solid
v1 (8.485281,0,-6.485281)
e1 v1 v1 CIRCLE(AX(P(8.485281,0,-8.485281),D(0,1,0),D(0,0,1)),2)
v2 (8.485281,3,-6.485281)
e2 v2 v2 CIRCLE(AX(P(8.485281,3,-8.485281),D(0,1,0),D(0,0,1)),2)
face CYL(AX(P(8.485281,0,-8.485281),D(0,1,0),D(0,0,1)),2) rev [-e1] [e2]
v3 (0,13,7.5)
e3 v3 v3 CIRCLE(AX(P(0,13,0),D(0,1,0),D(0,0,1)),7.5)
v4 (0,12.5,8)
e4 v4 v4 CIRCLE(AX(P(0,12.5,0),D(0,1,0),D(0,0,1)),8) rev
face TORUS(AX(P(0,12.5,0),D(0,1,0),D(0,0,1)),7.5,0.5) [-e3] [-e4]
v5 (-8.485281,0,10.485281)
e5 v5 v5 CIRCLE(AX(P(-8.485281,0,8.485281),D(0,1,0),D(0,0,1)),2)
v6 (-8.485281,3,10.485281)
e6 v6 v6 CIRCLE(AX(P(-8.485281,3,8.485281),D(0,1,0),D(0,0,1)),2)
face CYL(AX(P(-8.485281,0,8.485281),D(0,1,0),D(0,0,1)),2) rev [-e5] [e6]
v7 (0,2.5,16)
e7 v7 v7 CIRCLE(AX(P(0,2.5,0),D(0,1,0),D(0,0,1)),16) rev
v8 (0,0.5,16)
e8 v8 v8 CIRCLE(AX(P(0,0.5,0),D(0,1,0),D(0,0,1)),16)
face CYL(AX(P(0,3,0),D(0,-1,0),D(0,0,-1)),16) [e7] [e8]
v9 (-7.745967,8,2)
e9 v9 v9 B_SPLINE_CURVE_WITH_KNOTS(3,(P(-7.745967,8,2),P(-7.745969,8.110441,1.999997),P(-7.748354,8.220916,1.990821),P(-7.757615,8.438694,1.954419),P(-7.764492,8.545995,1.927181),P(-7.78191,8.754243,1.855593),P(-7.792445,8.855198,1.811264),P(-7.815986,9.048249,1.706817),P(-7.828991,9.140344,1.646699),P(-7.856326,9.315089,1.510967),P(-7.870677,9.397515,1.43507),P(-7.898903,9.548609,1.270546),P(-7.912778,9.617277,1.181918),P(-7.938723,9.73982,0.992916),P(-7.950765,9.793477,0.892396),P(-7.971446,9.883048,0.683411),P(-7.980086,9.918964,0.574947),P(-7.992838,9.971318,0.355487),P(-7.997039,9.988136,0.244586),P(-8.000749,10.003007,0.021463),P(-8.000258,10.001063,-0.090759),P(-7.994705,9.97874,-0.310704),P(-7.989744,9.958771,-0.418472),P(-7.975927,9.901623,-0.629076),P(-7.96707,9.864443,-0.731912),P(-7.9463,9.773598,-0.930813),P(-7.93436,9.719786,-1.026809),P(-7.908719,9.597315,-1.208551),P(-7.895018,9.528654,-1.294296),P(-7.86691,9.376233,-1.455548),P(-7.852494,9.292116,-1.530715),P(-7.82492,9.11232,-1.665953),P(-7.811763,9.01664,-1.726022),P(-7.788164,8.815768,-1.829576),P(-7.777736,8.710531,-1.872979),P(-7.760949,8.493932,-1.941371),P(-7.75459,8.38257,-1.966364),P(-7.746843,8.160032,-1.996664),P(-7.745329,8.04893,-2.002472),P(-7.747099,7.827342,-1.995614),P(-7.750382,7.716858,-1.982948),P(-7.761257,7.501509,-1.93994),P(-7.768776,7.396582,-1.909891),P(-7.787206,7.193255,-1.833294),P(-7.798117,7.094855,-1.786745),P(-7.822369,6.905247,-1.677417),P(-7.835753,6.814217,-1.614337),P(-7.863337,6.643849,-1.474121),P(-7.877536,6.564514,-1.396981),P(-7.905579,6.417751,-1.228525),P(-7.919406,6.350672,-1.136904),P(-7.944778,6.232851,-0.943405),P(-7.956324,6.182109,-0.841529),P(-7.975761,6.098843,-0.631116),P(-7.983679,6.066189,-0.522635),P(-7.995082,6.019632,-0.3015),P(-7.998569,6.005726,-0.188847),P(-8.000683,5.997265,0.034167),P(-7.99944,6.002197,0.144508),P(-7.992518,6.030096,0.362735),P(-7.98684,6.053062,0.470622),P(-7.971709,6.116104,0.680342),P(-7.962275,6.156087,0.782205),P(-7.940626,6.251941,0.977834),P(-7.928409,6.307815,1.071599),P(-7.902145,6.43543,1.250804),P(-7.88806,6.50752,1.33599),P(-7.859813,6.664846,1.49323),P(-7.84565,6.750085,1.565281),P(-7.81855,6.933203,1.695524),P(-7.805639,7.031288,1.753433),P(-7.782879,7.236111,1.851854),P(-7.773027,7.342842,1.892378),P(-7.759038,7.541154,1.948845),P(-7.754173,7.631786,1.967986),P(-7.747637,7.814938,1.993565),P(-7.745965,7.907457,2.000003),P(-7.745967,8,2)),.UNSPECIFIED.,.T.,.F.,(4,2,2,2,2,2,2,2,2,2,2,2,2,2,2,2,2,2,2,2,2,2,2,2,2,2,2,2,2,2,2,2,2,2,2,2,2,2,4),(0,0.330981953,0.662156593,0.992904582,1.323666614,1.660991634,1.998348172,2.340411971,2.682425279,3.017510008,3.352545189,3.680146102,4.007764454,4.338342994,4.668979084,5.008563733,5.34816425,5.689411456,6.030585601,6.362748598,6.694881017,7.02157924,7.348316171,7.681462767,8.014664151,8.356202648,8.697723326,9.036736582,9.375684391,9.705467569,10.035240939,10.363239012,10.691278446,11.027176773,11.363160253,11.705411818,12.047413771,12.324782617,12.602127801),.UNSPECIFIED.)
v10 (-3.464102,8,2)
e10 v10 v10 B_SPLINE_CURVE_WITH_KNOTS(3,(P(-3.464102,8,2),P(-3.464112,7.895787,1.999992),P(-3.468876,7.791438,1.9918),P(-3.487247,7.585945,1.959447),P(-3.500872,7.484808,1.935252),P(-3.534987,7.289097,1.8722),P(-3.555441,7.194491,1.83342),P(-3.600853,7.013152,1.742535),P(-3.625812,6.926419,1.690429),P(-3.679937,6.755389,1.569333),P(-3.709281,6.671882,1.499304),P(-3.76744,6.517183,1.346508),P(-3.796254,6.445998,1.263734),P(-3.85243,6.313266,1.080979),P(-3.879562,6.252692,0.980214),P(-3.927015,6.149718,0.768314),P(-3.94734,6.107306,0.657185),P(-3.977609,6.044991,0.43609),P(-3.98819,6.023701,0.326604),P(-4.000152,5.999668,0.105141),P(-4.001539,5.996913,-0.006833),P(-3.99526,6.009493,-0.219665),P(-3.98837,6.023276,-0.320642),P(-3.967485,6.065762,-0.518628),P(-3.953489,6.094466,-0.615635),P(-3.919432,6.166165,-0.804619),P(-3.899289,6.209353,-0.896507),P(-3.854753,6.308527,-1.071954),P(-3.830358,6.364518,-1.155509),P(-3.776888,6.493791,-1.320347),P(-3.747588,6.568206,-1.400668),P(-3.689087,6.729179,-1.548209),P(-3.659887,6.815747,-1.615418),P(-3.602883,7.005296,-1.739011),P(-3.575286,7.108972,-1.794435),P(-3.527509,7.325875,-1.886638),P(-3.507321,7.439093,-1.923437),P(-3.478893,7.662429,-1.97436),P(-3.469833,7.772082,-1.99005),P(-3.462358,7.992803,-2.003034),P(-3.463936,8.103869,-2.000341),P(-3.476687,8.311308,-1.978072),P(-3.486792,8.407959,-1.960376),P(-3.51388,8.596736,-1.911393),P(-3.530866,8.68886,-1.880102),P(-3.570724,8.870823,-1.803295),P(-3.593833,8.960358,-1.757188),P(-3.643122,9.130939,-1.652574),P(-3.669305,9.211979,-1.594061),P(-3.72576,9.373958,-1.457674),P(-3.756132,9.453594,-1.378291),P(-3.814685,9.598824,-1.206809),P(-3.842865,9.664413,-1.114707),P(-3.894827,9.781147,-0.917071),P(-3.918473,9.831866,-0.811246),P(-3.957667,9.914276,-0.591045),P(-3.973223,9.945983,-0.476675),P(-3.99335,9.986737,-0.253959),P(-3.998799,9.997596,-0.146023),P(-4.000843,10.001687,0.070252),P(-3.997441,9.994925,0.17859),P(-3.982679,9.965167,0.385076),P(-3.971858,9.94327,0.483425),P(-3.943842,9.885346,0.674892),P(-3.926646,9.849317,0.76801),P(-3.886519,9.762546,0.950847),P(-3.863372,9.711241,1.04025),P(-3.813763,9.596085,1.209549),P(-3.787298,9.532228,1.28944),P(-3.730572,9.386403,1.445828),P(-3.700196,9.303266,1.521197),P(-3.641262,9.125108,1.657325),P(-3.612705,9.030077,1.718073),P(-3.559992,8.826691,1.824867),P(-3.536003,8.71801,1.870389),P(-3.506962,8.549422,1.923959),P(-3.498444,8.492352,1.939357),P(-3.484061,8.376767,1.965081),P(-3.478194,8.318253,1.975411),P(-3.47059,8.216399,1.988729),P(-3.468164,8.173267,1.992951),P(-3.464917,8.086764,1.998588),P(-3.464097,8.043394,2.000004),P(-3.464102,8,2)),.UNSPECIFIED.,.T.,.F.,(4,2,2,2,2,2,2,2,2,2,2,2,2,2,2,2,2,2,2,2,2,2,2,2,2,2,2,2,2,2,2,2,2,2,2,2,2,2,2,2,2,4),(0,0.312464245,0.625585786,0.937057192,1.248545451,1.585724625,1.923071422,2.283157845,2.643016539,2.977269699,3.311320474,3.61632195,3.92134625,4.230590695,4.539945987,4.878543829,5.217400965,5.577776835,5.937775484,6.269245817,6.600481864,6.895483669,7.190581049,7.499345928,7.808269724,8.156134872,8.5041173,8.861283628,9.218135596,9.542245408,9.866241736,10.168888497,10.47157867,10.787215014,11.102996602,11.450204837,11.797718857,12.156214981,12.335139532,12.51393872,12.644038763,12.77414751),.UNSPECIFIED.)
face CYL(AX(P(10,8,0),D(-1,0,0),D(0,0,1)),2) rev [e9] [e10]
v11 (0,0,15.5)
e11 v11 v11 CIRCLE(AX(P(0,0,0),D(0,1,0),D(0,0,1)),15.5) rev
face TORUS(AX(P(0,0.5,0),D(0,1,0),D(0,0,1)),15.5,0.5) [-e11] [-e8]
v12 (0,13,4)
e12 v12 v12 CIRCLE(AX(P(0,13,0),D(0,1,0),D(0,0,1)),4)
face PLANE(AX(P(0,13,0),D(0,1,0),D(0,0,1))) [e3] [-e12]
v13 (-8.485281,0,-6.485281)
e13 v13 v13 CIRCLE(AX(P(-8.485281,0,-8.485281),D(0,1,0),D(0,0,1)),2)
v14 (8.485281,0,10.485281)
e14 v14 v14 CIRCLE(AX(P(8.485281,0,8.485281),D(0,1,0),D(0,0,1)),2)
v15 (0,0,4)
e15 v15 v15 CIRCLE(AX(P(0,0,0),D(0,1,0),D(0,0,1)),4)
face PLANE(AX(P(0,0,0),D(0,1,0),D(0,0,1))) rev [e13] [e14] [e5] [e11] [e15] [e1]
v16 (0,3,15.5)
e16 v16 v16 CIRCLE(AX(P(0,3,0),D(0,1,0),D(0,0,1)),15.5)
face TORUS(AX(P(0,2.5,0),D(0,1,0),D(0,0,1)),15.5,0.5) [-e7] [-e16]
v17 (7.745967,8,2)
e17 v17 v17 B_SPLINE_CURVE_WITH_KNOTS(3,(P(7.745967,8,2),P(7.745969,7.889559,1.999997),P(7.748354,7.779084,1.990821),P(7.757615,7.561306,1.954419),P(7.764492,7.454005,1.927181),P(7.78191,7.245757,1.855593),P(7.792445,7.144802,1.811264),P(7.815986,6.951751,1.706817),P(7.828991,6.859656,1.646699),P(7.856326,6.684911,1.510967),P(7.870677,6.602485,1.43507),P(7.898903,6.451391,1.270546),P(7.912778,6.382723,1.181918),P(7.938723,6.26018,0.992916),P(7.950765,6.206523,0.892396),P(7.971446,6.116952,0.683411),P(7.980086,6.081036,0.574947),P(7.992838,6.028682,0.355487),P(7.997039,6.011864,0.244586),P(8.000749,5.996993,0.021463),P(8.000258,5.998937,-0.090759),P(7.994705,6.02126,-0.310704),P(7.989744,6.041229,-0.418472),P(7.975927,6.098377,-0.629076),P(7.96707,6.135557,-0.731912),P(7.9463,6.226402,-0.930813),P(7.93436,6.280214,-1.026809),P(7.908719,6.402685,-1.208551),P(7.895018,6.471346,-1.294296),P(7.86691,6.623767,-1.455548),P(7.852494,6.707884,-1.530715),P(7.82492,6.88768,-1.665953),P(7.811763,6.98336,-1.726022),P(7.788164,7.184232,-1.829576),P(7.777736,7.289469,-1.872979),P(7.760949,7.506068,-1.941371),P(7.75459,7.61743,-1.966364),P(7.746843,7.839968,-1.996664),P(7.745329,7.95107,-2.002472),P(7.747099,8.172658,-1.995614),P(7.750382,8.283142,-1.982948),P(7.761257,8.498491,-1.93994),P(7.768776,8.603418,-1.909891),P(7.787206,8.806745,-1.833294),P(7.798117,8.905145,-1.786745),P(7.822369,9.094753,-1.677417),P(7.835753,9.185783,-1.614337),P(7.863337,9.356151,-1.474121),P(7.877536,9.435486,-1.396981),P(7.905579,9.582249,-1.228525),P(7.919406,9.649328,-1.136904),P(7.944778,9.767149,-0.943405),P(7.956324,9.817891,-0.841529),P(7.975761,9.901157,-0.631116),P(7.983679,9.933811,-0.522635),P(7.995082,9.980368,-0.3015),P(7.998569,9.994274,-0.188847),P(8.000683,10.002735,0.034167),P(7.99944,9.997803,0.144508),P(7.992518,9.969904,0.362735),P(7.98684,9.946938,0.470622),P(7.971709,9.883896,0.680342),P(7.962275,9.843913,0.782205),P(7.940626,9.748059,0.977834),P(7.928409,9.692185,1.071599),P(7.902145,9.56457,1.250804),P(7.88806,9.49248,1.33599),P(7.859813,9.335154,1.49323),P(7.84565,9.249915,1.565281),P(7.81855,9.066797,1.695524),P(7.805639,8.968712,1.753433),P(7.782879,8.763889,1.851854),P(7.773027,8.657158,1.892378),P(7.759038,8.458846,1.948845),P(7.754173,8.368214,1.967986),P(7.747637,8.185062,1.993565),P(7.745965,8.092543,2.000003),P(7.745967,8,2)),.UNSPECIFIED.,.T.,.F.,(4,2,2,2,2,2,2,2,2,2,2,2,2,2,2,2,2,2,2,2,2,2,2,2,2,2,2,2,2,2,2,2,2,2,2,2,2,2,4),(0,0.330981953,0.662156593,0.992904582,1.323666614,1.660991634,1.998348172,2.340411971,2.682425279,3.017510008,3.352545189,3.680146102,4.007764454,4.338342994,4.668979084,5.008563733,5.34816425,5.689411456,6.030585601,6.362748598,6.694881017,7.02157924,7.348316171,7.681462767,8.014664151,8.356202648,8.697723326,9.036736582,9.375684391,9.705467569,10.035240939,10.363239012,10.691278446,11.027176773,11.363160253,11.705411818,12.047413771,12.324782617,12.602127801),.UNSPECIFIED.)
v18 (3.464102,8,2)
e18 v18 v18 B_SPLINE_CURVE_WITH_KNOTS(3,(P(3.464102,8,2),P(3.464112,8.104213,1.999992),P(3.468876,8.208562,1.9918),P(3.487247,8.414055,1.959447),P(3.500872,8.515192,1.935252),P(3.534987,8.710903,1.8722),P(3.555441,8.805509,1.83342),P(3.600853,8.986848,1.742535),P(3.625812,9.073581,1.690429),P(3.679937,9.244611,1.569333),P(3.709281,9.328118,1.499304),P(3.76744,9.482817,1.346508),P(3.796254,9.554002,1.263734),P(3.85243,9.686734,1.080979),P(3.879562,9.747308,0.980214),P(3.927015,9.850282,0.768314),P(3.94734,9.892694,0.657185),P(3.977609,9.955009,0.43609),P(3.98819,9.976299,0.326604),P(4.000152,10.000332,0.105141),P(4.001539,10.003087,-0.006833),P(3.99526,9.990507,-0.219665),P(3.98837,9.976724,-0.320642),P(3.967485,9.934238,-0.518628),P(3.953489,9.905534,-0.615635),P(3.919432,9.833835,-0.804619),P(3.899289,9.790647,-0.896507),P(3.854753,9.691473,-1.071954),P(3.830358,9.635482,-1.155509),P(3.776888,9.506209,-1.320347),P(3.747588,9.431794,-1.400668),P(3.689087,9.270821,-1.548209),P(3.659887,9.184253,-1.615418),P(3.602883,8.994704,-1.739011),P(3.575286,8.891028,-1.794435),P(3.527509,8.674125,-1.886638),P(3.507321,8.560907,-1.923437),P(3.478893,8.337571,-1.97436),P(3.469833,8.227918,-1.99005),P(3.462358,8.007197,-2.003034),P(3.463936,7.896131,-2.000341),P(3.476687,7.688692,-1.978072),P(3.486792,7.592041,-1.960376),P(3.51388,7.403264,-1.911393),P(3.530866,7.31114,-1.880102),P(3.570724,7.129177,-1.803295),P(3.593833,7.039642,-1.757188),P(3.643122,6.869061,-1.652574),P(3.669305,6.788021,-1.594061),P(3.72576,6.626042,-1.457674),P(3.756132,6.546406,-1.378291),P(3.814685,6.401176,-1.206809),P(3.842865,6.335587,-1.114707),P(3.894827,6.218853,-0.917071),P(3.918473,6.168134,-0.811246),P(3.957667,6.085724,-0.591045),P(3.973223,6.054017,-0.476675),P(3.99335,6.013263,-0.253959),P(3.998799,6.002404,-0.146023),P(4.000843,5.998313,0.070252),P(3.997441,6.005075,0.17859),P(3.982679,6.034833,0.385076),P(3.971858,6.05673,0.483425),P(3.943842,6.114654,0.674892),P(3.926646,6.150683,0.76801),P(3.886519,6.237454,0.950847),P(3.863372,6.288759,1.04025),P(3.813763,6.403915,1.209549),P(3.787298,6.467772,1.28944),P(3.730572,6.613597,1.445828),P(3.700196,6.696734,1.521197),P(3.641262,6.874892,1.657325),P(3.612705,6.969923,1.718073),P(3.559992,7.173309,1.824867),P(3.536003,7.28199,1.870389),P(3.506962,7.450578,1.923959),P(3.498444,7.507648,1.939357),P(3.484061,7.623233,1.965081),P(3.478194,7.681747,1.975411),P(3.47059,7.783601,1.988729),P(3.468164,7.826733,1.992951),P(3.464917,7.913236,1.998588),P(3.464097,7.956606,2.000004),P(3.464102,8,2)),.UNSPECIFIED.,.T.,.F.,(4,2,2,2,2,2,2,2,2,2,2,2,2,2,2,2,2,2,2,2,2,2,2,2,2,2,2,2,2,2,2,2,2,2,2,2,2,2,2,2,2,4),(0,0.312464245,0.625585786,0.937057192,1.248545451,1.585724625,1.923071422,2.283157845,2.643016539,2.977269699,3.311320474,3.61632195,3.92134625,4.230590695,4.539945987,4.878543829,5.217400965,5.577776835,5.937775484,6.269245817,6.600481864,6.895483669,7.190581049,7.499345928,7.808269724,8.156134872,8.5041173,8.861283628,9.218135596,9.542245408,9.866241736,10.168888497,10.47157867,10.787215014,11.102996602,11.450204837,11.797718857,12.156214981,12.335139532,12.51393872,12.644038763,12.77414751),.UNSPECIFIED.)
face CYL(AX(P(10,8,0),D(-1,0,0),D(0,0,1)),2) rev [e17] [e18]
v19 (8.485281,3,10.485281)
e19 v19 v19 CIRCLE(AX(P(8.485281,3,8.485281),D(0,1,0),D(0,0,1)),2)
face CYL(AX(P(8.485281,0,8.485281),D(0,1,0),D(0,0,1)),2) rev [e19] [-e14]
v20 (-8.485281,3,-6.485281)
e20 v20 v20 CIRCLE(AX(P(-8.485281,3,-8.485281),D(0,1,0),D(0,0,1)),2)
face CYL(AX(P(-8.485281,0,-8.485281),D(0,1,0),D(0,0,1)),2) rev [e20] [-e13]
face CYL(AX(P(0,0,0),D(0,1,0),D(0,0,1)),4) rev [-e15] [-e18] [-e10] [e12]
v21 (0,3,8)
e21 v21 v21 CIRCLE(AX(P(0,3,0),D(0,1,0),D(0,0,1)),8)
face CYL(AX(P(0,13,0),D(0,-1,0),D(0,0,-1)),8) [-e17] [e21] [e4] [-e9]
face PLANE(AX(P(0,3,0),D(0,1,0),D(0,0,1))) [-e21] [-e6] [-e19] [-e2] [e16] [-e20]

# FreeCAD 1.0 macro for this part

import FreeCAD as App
import Part
import Sketcher

V = App.Vector
Q = App.Units.Quantity


def edges_at(feature, points):
    """Names of the edges that pass closest to the given points."""
    edges = feature.Shape.Edges
    near = lambda p: min(range(len(edges)), key=lambda i: edges[i].distToShape(Part.Vertex(*p))[0])
    return sorted({f"Edge{near(p) + 1}" for p in points})

doc = App.newDocument("Part")
body = doc.addObject("PartDesign::Body", "Body")

sketch1 = body.newObject("Sketcher::SketchObject", "Sketch")
sketch1.AttachmentSupport = (doc.getObject("XZ_Plane"), [""])
sketch1.MapMode = "FlatFace"
sketch1.addGeometry(Part.Circle(V(0, 0, 0), V(0, 0, 1), 16), False)
sketch1.addConstraint([
    Sketcher.Constraint("Coincident", 0, 3, -1, 1),
    Sketcher.Constraint("Diameter", 0, Q("32 mm")),
])
pad1 = body.newObject("PartDesign::Pad", "Pad")
pad1.Profile = sketch1
pad1.Length = 3
pad1.Reversed = True

sketch2 = body.newObject("Sketcher::SketchObject", "Sketch001")
sketch2.AttachmentSupport = (doc.getObject("XZ_Plane"), [""])
sketch2.MapMode = "FlatFace"
sketch2.AttachmentOffset = App.Placement(V(0, 0, -3), App.Rotation())
sketch2.addGeometry(Part.Circle(V(0, 0, 0), V(0, 0, 1), 8), False)
sketch2.addConstraint([
    Sketcher.Constraint("Coincident", 0, 3, -1, 1),
    Sketcher.Constraint("Diameter", 0, Q("16 mm")),
])
pad2 = body.newObject("PartDesign::Pad", "Pad001")
pad2.Profile = sketch2
pad2.Length = 10
pad2.Reversed = True

sketch3 = body.newObject("Sketcher::SketchObject", "Sketch002")
sketch3.AttachmentSupport = (doc.getObject("XZ_Plane"), [""])
sketch3.MapMode = "FlatFace"
sketch3.AttachmentOffset = App.Placement(V(0, 0, -13), App.Rotation())
sketch3.addGeometry(Part.Circle(V(0, 0, 0), V(0, 0, 1), 4), False)
sketch3.addConstraint([
    Sketcher.Constraint("Coincident", 0, 3, -1, 1),
    Sketcher.Constraint("Diameter", 0, Q("8 mm")),
])
pocket1 = body.newObject("PartDesign::Pocket", "Pocket")
pocket1.Profile = sketch3
pocket1.Length = 13
pocket1.Reversed = True

sketch4 = body.newObject("Sketcher::SketchObject", "Sketch003")
sketch4.AttachmentSupport = (doc.getObject("XZ_Plane"), [""])
sketch4.MapMode = "FlatFace"
sketch4.AttachmentOffset = App.Placement(V(0, 0, -3), App.Rotation())
sketch4.addGeometry([
    Part.Circle(V(8.5, -8.5, 0), V(0, 0, 1), 2),
    Part.Circle(V(8.5, 8.5, 0), V(0, 0, 1), 2),
    Part.Circle(V(-8.5, 8.5, 0), V(0, 0, 1), 2),
    Part.Circle(V(-8.5, -8.5, 0), V(0, 0, 1), 2),
], False)
sketch4.addConstraint([
    Sketcher.Constraint("Equal", 0, 1),
    Sketcher.Constraint("Equal", 1, 2),
    Sketcher.Constraint("Equal", 2, 3),
    Sketcher.Constraint("Symmetric", 0, 3, 2, 3, -1, 1),
    Sketcher.Constraint("Symmetric", 1, 3, 3, 3, -1, 1),
    Sketcher.Constraint("Symmetric", 1, 3, 2, 3, -2),
    Sketcher.Constraint("Diameter", 0, Q("4 mm")),
    Sketcher.Constraint("DistanceX", -1, 1, 0, 3, Q("8.485281 mm")),
    Sketcher.Constraint("DistanceY", 0, 3, -1, 1, Q("8.485281 mm")),
])
pocket2 = body.newObject("PartDesign::Pocket", "Pocket001")
pocket2.Profile = sketch4
pocket2.Length = 3
pocket2.Reversed = True

sketch5 = body.newObject("Sketcher::SketchObject", "Sketch004")
sketch5.AttachmentSupport = (doc.getObject("YZ_Plane"), [""])
sketch5.MapMode = "FlatFace"
sketch5.addGeometry(Part.Circle(V(8, 0, 0), V(0, 0, 1), 2), False)
sketch5.addConstraint([
    Sketcher.Constraint("PointOnObject", 0, 3, -1),
    Sketcher.Constraint("Diameter", 0, Q("4 mm")),
    Sketcher.Constraint("DistanceX", -1, 1, 0, 3, Q("8 mm")),
])
pocket3 = body.newObject("PartDesign::Pocket", "Pocket002")
pocket3.Profile = sketch5
pocket3.Type = "ThroughAll"
pocket3.Midplane = True
doc.recompute()

fillet = body.newObject("PartDesign::Fillet", "Fillet")
fillet.Base = (pocket3, edges_at(pocket3, [(0, 0, -16)]))
fillet.Radius = 0.5
doc.recompute()

fillet2 = body.newObject("PartDesign::Fillet", "Fillet001")
fillet2.Base = (fillet, edges_at(fillet, [(0, 3, -16), (0, 13, -8)]))
fillet2.Radius = 0.5

doc.recompute()
